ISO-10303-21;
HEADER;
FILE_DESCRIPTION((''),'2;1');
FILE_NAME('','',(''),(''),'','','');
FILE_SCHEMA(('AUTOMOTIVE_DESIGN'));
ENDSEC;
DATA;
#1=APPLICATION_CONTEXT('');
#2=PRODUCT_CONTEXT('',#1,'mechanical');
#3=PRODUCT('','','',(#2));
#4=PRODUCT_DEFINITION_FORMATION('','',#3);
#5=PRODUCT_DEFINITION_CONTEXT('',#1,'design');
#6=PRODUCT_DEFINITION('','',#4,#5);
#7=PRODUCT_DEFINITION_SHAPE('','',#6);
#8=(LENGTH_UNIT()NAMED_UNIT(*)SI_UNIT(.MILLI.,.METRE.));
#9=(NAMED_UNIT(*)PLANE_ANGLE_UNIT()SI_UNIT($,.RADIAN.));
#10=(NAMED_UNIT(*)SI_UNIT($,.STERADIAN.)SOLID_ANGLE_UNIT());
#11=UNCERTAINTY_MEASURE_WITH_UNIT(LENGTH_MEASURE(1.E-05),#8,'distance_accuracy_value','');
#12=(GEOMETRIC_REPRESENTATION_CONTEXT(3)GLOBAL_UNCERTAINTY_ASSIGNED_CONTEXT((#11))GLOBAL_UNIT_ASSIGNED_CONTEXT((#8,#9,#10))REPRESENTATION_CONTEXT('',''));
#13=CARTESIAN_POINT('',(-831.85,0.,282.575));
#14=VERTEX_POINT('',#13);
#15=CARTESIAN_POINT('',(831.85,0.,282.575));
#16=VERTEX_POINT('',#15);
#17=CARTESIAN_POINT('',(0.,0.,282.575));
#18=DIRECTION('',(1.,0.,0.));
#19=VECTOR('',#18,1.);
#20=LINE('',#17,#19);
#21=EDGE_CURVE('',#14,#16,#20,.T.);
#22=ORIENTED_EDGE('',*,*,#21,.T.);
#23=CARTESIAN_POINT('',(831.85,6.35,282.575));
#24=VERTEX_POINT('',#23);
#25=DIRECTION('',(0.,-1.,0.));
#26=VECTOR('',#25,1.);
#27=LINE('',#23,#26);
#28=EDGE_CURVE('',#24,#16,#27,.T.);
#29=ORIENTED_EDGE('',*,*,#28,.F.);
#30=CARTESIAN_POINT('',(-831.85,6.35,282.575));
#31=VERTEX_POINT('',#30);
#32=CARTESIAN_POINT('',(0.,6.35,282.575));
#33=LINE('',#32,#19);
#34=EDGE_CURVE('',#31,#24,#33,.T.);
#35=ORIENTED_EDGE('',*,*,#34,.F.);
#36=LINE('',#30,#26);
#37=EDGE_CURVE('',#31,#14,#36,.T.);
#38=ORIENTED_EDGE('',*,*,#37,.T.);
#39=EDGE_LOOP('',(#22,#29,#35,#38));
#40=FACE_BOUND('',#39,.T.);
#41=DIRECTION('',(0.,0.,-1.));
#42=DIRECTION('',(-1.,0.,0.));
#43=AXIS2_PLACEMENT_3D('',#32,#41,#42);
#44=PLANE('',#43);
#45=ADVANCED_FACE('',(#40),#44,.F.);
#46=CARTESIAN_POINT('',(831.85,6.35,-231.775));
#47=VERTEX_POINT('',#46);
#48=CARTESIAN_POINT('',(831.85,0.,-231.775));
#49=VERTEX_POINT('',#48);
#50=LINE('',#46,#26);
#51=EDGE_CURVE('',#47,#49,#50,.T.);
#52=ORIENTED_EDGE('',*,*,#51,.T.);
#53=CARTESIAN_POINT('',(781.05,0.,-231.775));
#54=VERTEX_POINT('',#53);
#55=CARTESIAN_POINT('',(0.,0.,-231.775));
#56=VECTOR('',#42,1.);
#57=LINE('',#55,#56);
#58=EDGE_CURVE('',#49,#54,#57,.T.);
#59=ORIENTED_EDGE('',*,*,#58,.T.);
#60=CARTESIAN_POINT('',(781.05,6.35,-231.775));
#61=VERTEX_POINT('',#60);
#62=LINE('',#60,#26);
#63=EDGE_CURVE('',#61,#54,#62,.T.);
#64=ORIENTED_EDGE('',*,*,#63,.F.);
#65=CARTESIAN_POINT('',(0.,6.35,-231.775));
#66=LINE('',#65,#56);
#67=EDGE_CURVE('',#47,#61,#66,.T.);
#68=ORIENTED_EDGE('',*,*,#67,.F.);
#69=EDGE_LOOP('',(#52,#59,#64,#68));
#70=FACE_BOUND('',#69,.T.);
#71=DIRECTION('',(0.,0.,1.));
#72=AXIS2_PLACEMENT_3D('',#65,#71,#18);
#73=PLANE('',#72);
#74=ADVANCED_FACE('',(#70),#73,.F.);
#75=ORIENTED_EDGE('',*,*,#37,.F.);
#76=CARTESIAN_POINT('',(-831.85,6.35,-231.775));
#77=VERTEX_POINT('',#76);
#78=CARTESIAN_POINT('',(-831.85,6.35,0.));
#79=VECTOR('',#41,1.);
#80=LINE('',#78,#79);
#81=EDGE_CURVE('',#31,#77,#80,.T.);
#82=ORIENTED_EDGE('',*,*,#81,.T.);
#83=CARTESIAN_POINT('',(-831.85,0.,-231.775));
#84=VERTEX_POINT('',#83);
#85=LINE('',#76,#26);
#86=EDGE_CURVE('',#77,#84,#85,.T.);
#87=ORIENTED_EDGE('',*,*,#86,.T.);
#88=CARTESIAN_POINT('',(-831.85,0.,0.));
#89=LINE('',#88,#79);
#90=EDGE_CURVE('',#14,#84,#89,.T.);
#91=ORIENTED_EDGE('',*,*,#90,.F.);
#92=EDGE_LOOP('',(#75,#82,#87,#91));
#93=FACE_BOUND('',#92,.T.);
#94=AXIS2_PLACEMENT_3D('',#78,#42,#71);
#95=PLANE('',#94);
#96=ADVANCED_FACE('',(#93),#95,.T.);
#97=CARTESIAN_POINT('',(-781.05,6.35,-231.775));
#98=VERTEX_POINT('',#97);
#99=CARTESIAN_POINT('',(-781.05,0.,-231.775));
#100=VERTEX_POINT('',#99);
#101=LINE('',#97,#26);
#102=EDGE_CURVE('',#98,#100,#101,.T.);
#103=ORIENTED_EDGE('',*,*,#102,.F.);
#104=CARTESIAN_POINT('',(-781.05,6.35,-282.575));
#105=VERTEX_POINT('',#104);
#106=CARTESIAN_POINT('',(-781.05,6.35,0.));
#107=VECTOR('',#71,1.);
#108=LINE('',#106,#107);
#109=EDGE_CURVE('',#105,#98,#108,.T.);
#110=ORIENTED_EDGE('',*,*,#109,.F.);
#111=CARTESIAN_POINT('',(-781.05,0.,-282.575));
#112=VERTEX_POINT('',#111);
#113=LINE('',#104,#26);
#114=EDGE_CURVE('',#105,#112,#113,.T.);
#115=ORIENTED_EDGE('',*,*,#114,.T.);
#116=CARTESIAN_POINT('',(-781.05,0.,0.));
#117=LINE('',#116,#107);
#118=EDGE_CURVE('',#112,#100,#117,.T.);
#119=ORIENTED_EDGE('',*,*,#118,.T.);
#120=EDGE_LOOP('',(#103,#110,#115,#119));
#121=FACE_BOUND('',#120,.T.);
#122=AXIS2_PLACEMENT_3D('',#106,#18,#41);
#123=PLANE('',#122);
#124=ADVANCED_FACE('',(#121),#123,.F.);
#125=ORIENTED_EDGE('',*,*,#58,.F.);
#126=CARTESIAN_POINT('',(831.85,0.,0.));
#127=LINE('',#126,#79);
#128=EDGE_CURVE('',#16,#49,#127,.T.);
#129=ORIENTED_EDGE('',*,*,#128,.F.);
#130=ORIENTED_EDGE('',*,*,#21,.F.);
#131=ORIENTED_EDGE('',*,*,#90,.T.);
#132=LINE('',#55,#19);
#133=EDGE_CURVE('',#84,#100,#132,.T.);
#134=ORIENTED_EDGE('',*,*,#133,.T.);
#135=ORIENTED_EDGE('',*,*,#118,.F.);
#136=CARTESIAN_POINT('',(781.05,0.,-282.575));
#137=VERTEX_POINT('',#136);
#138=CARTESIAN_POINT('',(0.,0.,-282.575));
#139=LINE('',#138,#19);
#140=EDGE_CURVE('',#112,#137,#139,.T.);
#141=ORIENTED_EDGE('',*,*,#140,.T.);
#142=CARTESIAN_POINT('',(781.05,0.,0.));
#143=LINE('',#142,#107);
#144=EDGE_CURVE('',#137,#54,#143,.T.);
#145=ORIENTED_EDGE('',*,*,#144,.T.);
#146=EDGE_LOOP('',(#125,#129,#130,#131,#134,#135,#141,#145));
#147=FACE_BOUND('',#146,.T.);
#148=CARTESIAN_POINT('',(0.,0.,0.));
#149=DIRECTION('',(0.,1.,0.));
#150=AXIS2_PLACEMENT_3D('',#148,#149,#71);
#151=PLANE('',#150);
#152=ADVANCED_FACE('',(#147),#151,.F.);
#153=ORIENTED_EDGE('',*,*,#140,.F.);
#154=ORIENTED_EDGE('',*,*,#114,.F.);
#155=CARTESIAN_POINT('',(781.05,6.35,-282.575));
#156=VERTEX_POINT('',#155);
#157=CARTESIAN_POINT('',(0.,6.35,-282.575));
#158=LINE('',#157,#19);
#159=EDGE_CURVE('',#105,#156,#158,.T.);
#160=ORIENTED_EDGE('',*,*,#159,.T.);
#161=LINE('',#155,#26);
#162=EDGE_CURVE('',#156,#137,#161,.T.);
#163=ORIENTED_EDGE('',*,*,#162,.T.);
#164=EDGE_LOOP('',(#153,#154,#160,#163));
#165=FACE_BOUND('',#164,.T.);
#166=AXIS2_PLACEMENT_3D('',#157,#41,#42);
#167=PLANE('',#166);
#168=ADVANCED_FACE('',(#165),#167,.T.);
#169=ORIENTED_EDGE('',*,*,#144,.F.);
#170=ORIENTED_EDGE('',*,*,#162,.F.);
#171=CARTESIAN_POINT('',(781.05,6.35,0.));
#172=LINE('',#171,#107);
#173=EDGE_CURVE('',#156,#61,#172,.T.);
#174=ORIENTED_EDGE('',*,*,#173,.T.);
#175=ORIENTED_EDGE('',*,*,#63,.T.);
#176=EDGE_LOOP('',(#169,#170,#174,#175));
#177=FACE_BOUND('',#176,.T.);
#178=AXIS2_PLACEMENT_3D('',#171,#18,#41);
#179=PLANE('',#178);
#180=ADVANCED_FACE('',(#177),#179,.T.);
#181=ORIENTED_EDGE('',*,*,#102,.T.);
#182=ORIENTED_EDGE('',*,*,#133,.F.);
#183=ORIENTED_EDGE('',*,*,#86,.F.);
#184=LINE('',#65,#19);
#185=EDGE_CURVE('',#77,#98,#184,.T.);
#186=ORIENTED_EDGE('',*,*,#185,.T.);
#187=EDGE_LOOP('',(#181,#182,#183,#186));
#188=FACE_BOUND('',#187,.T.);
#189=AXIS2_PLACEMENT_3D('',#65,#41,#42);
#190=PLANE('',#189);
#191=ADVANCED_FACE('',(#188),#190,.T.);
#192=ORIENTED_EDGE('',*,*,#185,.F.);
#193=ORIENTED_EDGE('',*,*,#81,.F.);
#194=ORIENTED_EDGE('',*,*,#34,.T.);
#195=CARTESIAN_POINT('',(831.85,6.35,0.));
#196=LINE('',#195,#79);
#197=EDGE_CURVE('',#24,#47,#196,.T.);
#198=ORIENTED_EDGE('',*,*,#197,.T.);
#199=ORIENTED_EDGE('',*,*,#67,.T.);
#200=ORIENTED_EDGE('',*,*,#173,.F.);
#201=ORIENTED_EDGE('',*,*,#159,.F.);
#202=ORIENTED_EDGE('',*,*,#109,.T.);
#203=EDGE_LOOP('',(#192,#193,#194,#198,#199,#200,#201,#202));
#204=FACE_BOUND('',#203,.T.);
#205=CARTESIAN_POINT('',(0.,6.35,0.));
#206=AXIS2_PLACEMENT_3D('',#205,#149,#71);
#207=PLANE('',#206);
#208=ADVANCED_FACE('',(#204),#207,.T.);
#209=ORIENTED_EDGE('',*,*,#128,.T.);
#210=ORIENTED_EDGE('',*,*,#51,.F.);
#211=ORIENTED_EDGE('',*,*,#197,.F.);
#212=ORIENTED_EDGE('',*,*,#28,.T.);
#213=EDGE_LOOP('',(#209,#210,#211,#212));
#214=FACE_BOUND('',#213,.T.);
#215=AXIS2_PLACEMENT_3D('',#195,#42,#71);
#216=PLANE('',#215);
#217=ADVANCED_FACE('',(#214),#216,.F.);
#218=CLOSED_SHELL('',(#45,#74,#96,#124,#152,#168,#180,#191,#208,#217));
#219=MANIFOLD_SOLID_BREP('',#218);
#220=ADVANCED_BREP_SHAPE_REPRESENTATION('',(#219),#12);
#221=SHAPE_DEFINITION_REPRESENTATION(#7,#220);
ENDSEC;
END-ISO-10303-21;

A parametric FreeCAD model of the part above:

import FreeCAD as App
import Part
import Sketcher
Q = App.Units.Quantity

doc = App.newDocument("Part")
body = doc.addObject("PartDesign::Body", "Body")

sketch1 = body.newObject("Sketcher::SketchObject", "Sketch")
sketch1.AttachmentSupport = (doc.getObject("XZ_Plane"), [""])
sketch1.MapMode = "FlatFace"
sketch1.addGeometry([
    Part.LineSegment(App.Vector(-832, -232, 0), App.Vector(-832, 283, 0)),
    Part.LineSegment(App.Vector(-832, 283, 0), App.Vector(832, 283, 0)),
    Part.LineSegment(App.Vector(832, 283, 0), App.Vector(832, -232, 0)),
    Part.LineSegment(App.Vector(832, -232, 0), App.Vector(781, -232, 0)),
    Part.LineSegment(App.Vector(781, -232, 0), App.Vector(781, -283, 0)),
    Part.LineSegment(App.Vector(781, -283, 0), App.Vector(-781, -283, 0)),
    Part.LineSegment(App.Vector(-781, -283, 0), App.Vector(-781, -232, 0)),
    Part.LineSegment(App.Vector(-781, -232, 0), App.Vector(-832, -232, 0)),
], False)
sketch1.addConstraint([
    Sketcher.Constraint("Coincident", 0, 2, 1, 1),
    Sketcher.Constraint("Coincident", 1, 2, 2, 1),
    Sketcher.Constraint("Coincident", 2, 2, 3, 1),
    Sketcher.Constraint("Coincident", 3, 2, 4, 1),
    Sketcher.Constraint("Coincident", 4, 2, 5, 1),
    Sketcher.Constraint("Coincident", 5, 2, 6, 1),
    Sketcher.Constraint("Coincident", 6, 2, 7, 1),
    Sketcher.Constraint("Coincident", 7, 2, 0, 1),
    Sketcher.Constraint("Vertical", 0),
    Sketcher.Constraint("Horizontal", 1),
    Sketcher.Constraint("Vertical", 2),
    Sketcher.Constraint("Horizontal", 3),
    Sketcher.Constraint("Vertical", 4),
    Sketcher.Constraint("Horizontal", 5),
    Sketcher.Constraint("Vertical", 6),
    Sketcher.Constraint("Horizontal", 7),
    Sketcher.Constraint("Symmetric", 3, 2, 6, 2, -2),
    Sketcher.Constraint("Equal", 3, 7),
    Sketcher.Constraint("Equal", 7, 4),
    Sketcher.Constraint("DistanceX", 3, 2, 3, 1, Q("2 in")),
    Sketcher.Constraint("DistanceX", 1, 1, 1, 2, Q("65.5 in")),
    Sketcher.Constraint("DistanceY", 0, 1, 0, 2, Q("20.25 in")),
    Sketcher.Constraint("DistanceY", -1, 1, 0, 2, Q("11.125 in")),
])
pad1 = body.newObject("PartDesign::Pad", "Pad")
pad1.Profile = sketch1
pad1.Length = Q("0.25 in")
pad1.Reversed = True

doc.recompute()
